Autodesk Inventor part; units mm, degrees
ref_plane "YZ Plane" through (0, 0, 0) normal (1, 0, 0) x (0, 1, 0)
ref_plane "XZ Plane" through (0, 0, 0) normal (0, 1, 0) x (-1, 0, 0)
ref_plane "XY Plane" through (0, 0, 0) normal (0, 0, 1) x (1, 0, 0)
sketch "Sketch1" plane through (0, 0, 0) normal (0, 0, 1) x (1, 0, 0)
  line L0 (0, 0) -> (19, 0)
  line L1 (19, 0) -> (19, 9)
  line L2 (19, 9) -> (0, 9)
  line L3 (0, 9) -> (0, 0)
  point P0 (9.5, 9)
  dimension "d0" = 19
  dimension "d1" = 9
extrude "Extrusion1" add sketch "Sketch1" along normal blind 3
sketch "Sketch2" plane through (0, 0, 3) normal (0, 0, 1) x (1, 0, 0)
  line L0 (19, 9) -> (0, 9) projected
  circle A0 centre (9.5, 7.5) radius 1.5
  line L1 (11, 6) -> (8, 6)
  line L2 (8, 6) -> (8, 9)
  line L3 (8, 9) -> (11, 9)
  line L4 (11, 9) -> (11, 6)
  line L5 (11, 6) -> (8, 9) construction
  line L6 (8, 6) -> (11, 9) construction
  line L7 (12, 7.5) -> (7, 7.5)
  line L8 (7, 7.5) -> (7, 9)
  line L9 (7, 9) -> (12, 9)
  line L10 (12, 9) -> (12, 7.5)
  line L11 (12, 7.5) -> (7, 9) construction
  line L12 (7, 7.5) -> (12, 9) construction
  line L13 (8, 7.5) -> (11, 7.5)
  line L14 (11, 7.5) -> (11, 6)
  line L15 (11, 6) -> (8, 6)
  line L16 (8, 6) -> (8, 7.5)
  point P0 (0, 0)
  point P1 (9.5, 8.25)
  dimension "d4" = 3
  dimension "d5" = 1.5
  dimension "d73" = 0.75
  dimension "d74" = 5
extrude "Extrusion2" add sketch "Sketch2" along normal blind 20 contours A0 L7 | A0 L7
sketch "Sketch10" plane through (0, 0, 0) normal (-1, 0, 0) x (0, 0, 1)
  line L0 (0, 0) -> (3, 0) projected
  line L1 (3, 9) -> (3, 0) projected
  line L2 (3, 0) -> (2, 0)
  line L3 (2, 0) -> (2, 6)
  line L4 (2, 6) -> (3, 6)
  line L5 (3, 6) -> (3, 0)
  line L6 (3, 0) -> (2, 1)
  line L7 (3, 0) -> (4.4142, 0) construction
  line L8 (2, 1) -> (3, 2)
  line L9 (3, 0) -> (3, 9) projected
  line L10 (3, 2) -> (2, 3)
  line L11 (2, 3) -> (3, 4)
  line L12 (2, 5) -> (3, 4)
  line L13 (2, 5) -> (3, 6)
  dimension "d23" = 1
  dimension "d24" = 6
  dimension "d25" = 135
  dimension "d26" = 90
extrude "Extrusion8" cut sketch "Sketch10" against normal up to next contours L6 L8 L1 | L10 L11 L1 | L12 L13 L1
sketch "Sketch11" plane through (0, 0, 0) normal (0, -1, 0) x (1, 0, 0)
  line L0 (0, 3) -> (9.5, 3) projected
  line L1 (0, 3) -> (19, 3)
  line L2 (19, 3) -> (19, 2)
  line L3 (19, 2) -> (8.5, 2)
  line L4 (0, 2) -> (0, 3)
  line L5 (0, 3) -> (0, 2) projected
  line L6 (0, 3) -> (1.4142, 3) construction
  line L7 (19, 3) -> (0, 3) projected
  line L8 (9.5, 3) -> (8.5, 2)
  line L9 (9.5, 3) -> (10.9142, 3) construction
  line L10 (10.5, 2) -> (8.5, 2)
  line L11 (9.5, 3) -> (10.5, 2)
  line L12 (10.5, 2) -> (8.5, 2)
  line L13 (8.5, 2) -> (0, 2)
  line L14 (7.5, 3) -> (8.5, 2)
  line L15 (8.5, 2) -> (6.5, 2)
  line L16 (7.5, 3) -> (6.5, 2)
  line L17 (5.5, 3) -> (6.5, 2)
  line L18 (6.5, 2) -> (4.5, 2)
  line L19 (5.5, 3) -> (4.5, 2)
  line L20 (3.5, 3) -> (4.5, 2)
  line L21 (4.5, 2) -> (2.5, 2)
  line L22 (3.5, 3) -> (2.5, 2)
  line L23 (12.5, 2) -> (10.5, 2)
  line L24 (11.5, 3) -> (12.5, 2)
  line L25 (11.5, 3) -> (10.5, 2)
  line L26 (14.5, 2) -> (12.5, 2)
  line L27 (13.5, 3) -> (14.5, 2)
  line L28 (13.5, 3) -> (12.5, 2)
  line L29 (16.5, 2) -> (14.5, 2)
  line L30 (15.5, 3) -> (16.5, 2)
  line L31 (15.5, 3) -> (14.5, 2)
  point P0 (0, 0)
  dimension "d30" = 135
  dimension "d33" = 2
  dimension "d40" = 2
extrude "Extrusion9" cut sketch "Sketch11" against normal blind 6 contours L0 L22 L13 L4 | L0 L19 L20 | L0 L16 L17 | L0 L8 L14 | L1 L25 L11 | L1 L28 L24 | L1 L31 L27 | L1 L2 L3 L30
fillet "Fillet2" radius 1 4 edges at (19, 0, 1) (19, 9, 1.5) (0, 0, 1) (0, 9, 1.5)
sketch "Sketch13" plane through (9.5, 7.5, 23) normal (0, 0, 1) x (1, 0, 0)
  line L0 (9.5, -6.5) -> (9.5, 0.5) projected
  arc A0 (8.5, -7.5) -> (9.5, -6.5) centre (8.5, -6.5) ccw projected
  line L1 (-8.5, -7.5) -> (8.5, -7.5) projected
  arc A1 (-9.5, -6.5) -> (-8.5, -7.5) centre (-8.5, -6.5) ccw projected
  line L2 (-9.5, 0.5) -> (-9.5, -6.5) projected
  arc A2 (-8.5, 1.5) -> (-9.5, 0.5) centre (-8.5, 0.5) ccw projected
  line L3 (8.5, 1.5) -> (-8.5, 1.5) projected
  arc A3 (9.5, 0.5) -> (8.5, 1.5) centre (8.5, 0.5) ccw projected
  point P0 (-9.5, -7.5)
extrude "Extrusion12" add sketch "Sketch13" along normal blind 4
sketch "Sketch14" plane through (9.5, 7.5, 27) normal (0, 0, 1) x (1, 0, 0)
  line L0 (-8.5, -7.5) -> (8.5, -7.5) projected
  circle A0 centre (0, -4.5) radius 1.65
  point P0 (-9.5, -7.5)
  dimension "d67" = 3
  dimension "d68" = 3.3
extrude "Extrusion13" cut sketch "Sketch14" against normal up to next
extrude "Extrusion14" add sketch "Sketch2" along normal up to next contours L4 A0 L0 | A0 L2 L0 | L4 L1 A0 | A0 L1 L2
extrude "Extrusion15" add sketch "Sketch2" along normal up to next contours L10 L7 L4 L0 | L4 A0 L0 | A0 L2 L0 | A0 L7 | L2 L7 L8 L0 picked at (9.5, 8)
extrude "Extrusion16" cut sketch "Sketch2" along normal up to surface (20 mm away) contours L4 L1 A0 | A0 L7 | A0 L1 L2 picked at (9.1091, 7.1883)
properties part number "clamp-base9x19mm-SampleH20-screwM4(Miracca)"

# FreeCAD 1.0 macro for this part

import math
import FreeCAD as App
import Part
import Sketcher


def edges_at(feature, points):
    """Names of the edges that pass closest to the given points."""
    edges = feature.Shape.Edges
    near = lambda p: min(range(len(edges)), key=lambda i: edges[i].distToShape(Part.Vertex(*p))[0])
    return sorted({f"Edge{near(p) + 1}" for p in points})


def add_polygon(sketch, points):
    """Adds a closed chain of lines whose ends are joined by coincident constraints."""
    first, n = sketch.GeometryCount, len(points)
    for a, b in zip(points, points[1:] + points[:1]):
        sketch.addGeometry(Part.LineSegment(App.Vector(*a, 0), App.Vector(*b, 0)), False)
    for i in range(n):
        sketch.addConstraint(Sketcher.Constraint("Coincident", first + i, 2, first + (i + 1) % n, 1))

doc = App.newDocument("Part")
params = doc.addObject("Spreadsheet::Sheet", "Params")
for row, (alias, value) in enumerate([
    ("sketch1_width", "19 mm"),
    ("sketch1_height", "9 mm"),
    ("pad1_length", "3 mm"),
    ("sketch2_diameter", "3 mm"),
    ("pad2_length", "20 mm"),
    ("sketch4_width", "2 mm"),
    ("sketch4_width2", "3.5 mm"),
    ("pocket2_length", "6 mm"),
    ("fillet_radius", "1 mm"),
    ("sketch5_radius", "1 mm"),
    ("sketch5_width", "17 mm"),
    ("sketch5_height", "7 mm"),
    ("pad3_length", "4 mm"),
    ("sketch6_diameter", "3.3 mm"),
    ("sketch7_radius", "1.5 mm"),
    ("sketch8_width", "5 mm"),
    ("sketch8_height", "1.5 mm"),
    ("sketch9_width", "3 mm"),
    ("sketch9_height", "1.5 mm"),
    ("pocket4_length", "20 mm"),
], start=1):
    params.set(f"A{row}", alias)
    params.set(f"B{row}", "=" + value)
    params.setAlias(f"B{row}", alias)

body = doc.addObject("PartDesign::Body", "Body")

# Sketch on XY plane
sketch1 = doc.addObject("Sketcher::SketchObject", "Sketch")
body.addObject(sketch1)
sketch1.AttachmentSupport = (doc.XY_Plane, [""])
sketch1.MapMode = "FlatFace"
add_polygon(sketch1, [(0, 9), (0, 0), (19, 0), (19, 9)])  # lines 0-3
sketch1.addConstraint([
    Sketcher.Constraint("Vertical", 0),
    Sketcher.Constraint("Horizontal", 1),
    Sketcher.Constraint("Vertical", 2),
    Sketcher.Constraint("Horizontal", 3),
    Sketcher.Constraint("Coincident", 0, 2, -1, 1),
    Sketcher.Constraint("DistanceX", 1, 1, 1, 2, 19.0),
    Sketcher.Constraint("DistanceY", 0, 2, 0, 1, 9.0),
])
sketch1.setExpression("Constraints[9]", "Params.sketch1_width")
sketch1.setExpression("Constraints[10]", "Params.sketch1_height")
pad1 = doc.addObject("PartDesign::Pad", "Pad")
body.addObject(pad1)
pad1.Profile = sketch1
pad1.setExpression("Length", "Params.pad1_length")

# Sketch on XY plane
sketch2 = doc.addObject("Sketcher::SketchObject", "Sketch001")
body.addObject(sketch2)
sketch2.AttachmentSupport = (doc.XY_Plane, [""])
sketch2.MapMode = "FlatFace"
sketch2.AttachmentOffset = App.Placement(App.Vector(0, 0, 3), App.Rotation())
sketch2.addGeometry(Part.Circle(App.Vector(9.5, 7.5, 0), App.Vector(0, 0, 1), 1.5), False)
sketch2.addConstraint([
    Sketcher.Constraint("Diameter", 0, 3.0),
    Sketcher.Constraint("DistanceX", -1, 1, 0, 3, 9.5),
    Sketcher.Constraint("DistanceY", -1, 1, 0, 3, 7.5),
])
sketch2.setExpression("Constraints[0]", "Params.sketch2_diameter")
pad2 = doc.addObject("PartDesign::Pad", "Pad001")
body.addObject(pad2)
pad2.Profile = sketch2
pad2.setExpression("Length", "Params.pad2_length")

# Sketch on YZ plane
sketch3 = doc.addObject("Sketcher::SketchObject", "Sketch002")
body.addObject(sketch3)
sketch3.AttachmentSupport = (doc.YZ_Plane, [""])
sketch3.MapMode = "FlatFace"
add_polygon(sketch3, [(1, 2), (0, 3), (2, 3)])  # lines 0-2
add_polygon(sketch3, [(3, 2), (2, 3), (4, 3)])  # lines 3-5
add_polygon(sketch3, [(5, 2), (4, 3), (6, 3)])  # lines 6-8
sketch3.addConstraint([
    Sketcher.Constraint("Horizontal", 1),
    Sketcher.Constraint("Horizontal", 4),
    Sketcher.Constraint("Horizontal", 7),
    Sketcher.Constraint("Coincident", 3, 2, 1, 2),
    Sketcher.Constraint("Coincident", 6, 2, 4, 2),
    Sketcher.Constraint("PointOnObject", 0, 2, -2),
    Sketcher.Constraint("Perpendicular", 0, 2),
    Sketcher.Constraint("Perpendicular", 2, 3),
    Sketcher.Constraint("Perpendicular", 3, 5),
    Sketcher.Constraint("Perpendicular", 5, 6),
    Sketcher.Constraint("Perpendicular", 6, 8),
    Sketcher.Constraint("Horizontal", 2, 2, 5, 2),
    Sketcher.Constraint("Horizontal", 5, 2, 8, 2),
    Sketcher.Constraint("Equal", 0, 2),
    Sketcher.Constraint("DistanceX", -1, 1, 2, 2, 1.0),
    Sketcher.Constraint("DistanceY", -1, 1, 0, 2, 3.0),
])
pocket1 = doc.addObject("PartDesign::Pocket", "Pocket")
body.addObject(pocket1)
pocket1.Profile = sketch3
pocket1.Type = "UpToFirst"
pocket1.Reversed = True

# Sketch on XZ plane
sketch4 = doc.addObject("Sketcher::SketchObject", "Sketch003")
body.addObject(sketch4)
sketch4.AttachmentSupport = (doc.XZ_Plane, [""])
sketch4.MapMode = "FlatFace"
add_polygon(sketch4, [(3.5, 3), (0, 3), (0, 2), (2.5, 2)])  # lines 0-3
add_polygon(sketch4, [(5.5, 3), (3.5, 3), (4.5, 2)])  # lines 4-6
add_polygon(sketch4, [(7.5, 3), (5.5, 3), (6.5, 2)])  # lines 7-9
add_polygon(sketch4, [(9.5, 3), (7.5, 3), (8.5, 2)])  # lines 10-12
add_polygon(sketch4, [(11.5, 3), (9.5, 3), (10.5, 2)])  # lines 13-15
add_polygon(sketch4, [(13.5, 3), (11.5, 3), (12.5, 2)])  # lines 16-18
add_polygon(sketch4, [(15.5, 3), (13.5, 3), (14.5, 2)])  # lines 19-21
add_polygon(sketch4, [(19, 3), (15.5, 3), (16.5, 2), (19, 2)])  # lines 22-25
sketch4.addConstraint([
    Sketcher.Constraint("Horizontal", 0),
    Sketcher.Constraint("Vertical", 1),
    Sketcher.Constraint("Horizontal", 2),
    Sketcher.Constraint("Horizontal", 4),
    Sketcher.Constraint("Horizontal", 7),
    Sketcher.Constraint("Horizontal", 10),
    Sketcher.Constraint("Horizontal", 13),
    Sketcher.Constraint("Horizontal", 16),
    Sketcher.Constraint("Horizontal", 19),
    Sketcher.Constraint("Horizontal", 22),
    Sketcher.Constraint("Horizontal", 24),
    Sketcher.Constraint("Vertical", 25),
    Sketcher.Constraint("Coincident", 4, 2, 3, 2),
    Sketcher.Constraint("Coincident", 7, 2, 6, 2),
    Sketcher.Constraint("Coincident", 10, 2, 9, 2),
    Sketcher.Constraint("Coincident", 13, 2, 12, 2),
    Sketcher.Constraint("Coincident", 16, 2, 15, 2),
    Sketcher.Constraint("Coincident", 19, 2, 18, 2),
    Sketcher.Constraint("Coincident", 22, 2, 21, 2),
    Sketcher.Constraint("PointOnObject", 0, 2, -2),
    Sketcher.Constraint("Perpendicular", 3, 5),
    Sketcher.Constraint("Perpendicular", 5, 6),
    Sketcher.Constraint("Perpendicular", 6, 8),
    Sketcher.Constraint("Perpendicular", 8, 9),
    Sketcher.Constraint("Perpendicular", 9, 11),
    Sketcher.Constraint("Perpendicular", 11, 12),
    Sketcher.Constraint("Perpendicular", 12, 14),
    Sketcher.Constraint("Perpendicular", 14, 15),
    Sketcher.Constraint("Perpendicular", 15, 17),
    Sketcher.Constraint("Perpendicular", 17, 18),
    Sketcher.Constraint("Perpendicular", 18, 20),
    Sketcher.Constraint("Perpendicular", 20, 21),
    Sketcher.Constraint("Perpendicular", 21, 23),
    Sketcher.Constraint("Horizontal", 2, 2, 5, 2),
    Sketcher.Constraint("Horizontal", 5, 2, 8, 2),
    Sketcher.Constraint("Horizontal", 8, 2, 11, 2),
    Sketcher.Constraint("Horizontal", 11, 2, 14, 2),
    Sketcher.Constraint("Horizontal", 14, 2, 17, 2),
    Sketcher.Constraint("Horizontal", 17, 2, 20, 2),
    Sketcher.Constraint("Horizontal", 20, 2, 23, 2),
    Sketcher.Constraint("Equal", 0, 22),
    Sketcher.Constraint("Equal", 2, 24),
    Sketcher.Constraint("DistanceX", 4, 2, 4, 1, 2.0),
    Sketcher.Constraint("DistanceY", -1, 1, 1, 2, 2.0),
    Sketcher.Constraint("DistanceX", 0, 2, 0, 1, 3.5),
])
sketch4.setExpression("Constraints[68]", "Params.sketch4_width")
sketch4.setExpression("Constraints[70]", "Params.sketch4_width2")
pocket2 = doc.addObject("PartDesign::Pocket", "Pocket001")
body.addObject(pocket2)
pocket2.Profile = sketch4
pocket2.setExpression("Length", "Params.pocket2_length")
doc.recompute()

fillet = doc.addObject("PartDesign::Fillet", "Fillet")
body.addObject(fillet)
fillet.Base = (pocket2, edges_at(pocket2, [
    (19, 0, 1),
    (19, 9, 1.5),
    (0, 0, 1),
    (0, 9, 1.5),
]))
fillet.setExpression("Radius", "Params.fillet_radius")

# Sketch on XY plane
sketch5 = doc.addObject("Sketcher::SketchObject", "Sketch004")
body.addObject(sketch5)
sketch5.AttachmentSupport = (doc.XY_Plane, [""])
sketch5.MapMode = "FlatFace"
sketch5.AttachmentOffset = App.Placement(App.Vector(0, 0, 23), App.Rotation())
sketch5.addGeometry([
    Part.ArcOfCircle(Part.Circle(App.Vector(18, 1, 0), App.Vector(0, 0, 1), 1), math.radians(-90), math.radians(0)),  # 0
    Part.LineSegment(App.Vector(19, 1, 0), App.Vector(19, 8, 0)),  # 1
    Part.ArcOfCircle(Part.Circle(App.Vector(18, 8, 0), App.Vector(0, 0, 1), 1), math.radians(0), math.radians(90)),  # 2
    Part.LineSegment(App.Vector(18, 9, 0), App.Vector(1, 9, 0)),  # 3
    Part.ArcOfCircle(Part.Circle(App.Vector(1, 8, 0), App.Vector(0, 0, 1), 1), math.radians(90), math.radians(180)),  # 4
    Part.LineSegment(App.Vector(0, 8, 0), App.Vector(0, 1, 0)),  # 5
    Part.ArcOfCircle(Part.Circle(App.Vector(1, 1, 0), App.Vector(0, 0, 1), 1), math.radians(180), math.radians(270)),  # 6
    Part.LineSegment(App.Vector(1, 0, 0), App.Vector(18, 0, 0)),  # 7
], False)
sketch5.addConstraint([
    Sketcher.Constraint("Tangent", 0, 2, 1, 1),
    Sketcher.Constraint("Tangent", 1, 2, 2, 1),
    Sketcher.Constraint("Tangent", 2, 2, 3, 1),
    Sketcher.Constraint("Tangent", 3, 2, 4, 1),
    Sketcher.Constraint("Tangent", 4, 2, 5, 1),
    Sketcher.Constraint("Tangent", 5, 2, 6, 1),
    Sketcher.Constraint("Tangent", 6, 2, 7, 1),
    Sketcher.Constraint("Tangent", 7, 2, 0, 1),
    Sketcher.Constraint("Vertical", 1),
    Sketcher.Constraint("Horizontal", 3),
    Sketcher.Constraint("Vertical", 5),
    Sketcher.Constraint("Horizontal", 7),
    Sketcher.Constraint("Equal", 0, 2),
    Sketcher.Constraint("Equal", 2, 4),
    Sketcher.Constraint("Equal", 4, 6),
    Sketcher.Constraint("PointOnObject", 4, 2, -2),
    Sketcher.Constraint("PointOnObject", 6, 2, -1),
    Sketcher.Constraint("Radius", 0, 1.0),
    Sketcher.Constraint("DistanceX", 3, 2, 3, 1, 17.0),
    Sketcher.Constraint("DistanceY", 1, 1, 1, 2, 7.0),
])
sketch5.setExpression("Constraints[17]", "Params.sketch5_radius")
sketch5.setExpression("Constraints[18]", "Params.sketch5_width")
sketch5.setExpression("Constraints[19]", "Params.sketch5_height")
pad3 = doc.addObject("PartDesign::Pad", "Pad002")
body.addObject(pad3)
pad3.Profile = sketch5
pad3.setExpression("Length", "Params.pad3_length")

# Sketch on XY plane
sketch6 = doc.addObject("Sketcher::SketchObject", "Sketch005")
body.addObject(sketch6)
sketch6.AttachmentSupport = (doc.XY_Plane, [""])
sketch6.MapMode = "FlatFace"
sketch6.AttachmentOffset = App.Placement(App.Vector(0, 0, 27), App.Rotation())
sketch6.addGeometry(Part.Circle(App.Vector(9.5, 3, 0), App.Vector(0, 0, 1), 1.6), False)
sketch6.addConstraint([
    Sketcher.Constraint("Diameter", 0, 3.3),
    Sketcher.Constraint("DistanceY", -1, 1, 0, 3, 3.0),
    Sketcher.Constraint("DistanceX", -1, 1, 0, 3, 9.5),
])
sketch6.setExpression("Constraints[0]", "Params.sketch6_diameter")
pocket3 = doc.addObject("PartDesign::Pocket", "Pocket002")
body.addObject(pocket3)
pocket3.Profile = sketch6
pocket3.Type = "UpToFirst"

# Sketch on XY plane
sketch7 = doc.addObject("Sketcher::SketchObject", "Sketch006")
body.addObject(sketch7)
sketch7.AttachmentSupport = (doc.XY_Plane, [""])
sketch7.MapMode = "FlatFace"
sketch7.AttachmentOffset = App.Placement(App.Vector(0, 0, 3), App.Rotation())
sketch7.addGeometry([
    Part.LineSegment(App.Vector(11, 7.5, 0), App.Vector(11, 9, 0)),  # 0
    Part.LineSegment(App.Vector(11, 9, 0), App.Vector(9.5, 9, 0)),  # 1
    Part.ArcOfCircle(Part.Circle(App.Vector(9.5, 7.5, 0), App.Vector(0, 0, 1), 1.5), math.radians(0), math.radians(90)),  # 2
    Part.ArcOfCircle(Part.Circle(App.Vector(9.5, 7.5, 0), App.Vector(0, 0, 1), 1.5), math.radians(90), math.radians(180)),  # 3
    Part.LineSegment(App.Vector(9.5, 9, 0), App.Vector(8, 9, 0)),  # 4
    Part.LineSegment(App.Vector(8, 9, 0), App.Vector(8, 7.5, 0)),  # 5
    Part.LineSegment(App.Vector(11, 6, 0), App.Vector(11, 7.5, 0)),  # 6
    Part.ArcOfCircle(Part.Circle(App.Vector(9.5, 7.5, 0), App.Vector(0, 0, 1), 1.5), math.radians(-90), math.radians(0)),  # 7
    Part.LineSegment(App.Vector(9.5, 6, 0), App.Vector(11, 6, 0)),  # 8
    Part.ArcOfCircle(Part.Circle(App.Vector(9.5, 7.5, 0), App.Vector(0, 0, 1), 1.5), math.radians(180), math.radians(270)),  # 9
    Part.LineSegment(App.Vector(8, 7.5, 0), App.Vector(8, 6, 0)),  # 10
    Part.LineSegment(App.Vector(8, 6, 0), App.Vector(9.5, 6, 0)),  # 11
], False)
sketch7.addConstraint([
    Sketcher.Constraint("Coincident", 0, 2, 1, 1),
    Sketcher.Constraint("Tangent", 1, 2, 2, 2),
    Sketcher.Constraint("Tangent", 2, 1, 0, 1),
    Sketcher.Constraint("Tangent", 3, 1, 4, 1),
    Sketcher.Constraint("Coincident", 4, 2, 5, 1),
    Sketcher.Constraint("Tangent", 5, 2, 3, 2),
    Sketcher.Constraint("Tangent", 6, 2, 7, 2),
    Sketcher.Constraint("Tangent", 7, 1, 8, 1),
    Sketcher.Constraint("Coincident", 8, 2, 6, 1),
    Sketcher.Constraint("Tangent", 9, 1, 10, 1),
    Sketcher.Constraint("Coincident", 10, 2, 11, 1),
    Sketcher.Constraint("Tangent", 11, 2, 9, 2),
    Sketcher.Constraint("Vertical", 0),
    Sketcher.Constraint("Horizontal", 1),
    Sketcher.Constraint("Horizontal", 4),
    Sketcher.Constraint("Vertical", 5),
    Sketcher.Constraint("Vertical", 6),
    Sketcher.Constraint("Horizontal", 8),
    Sketcher.Constraint("Vertical", 10),
    Sketcher.Constraint("Horizontal", 11),
    Sketcher.Constraint("Coincident", 3, 3, 2, 3),
    Sketcher.Constraint("Coincident", 7, 3, 2, 3),
    Sketcher.Constraint("Coincident", 9, 3, 2, 3),
    Sketcher.Constraint("Equal", 2, 3),
    Sketcher.Constraint("Equal", 3, 7),
    Sketcher.Constraint("Equal", 7, 9),
    Sketcher.Constraint("Radius", 2, 1.5),
    Sketcher.Constraint("DistanceX", -1, 1, 0, 2, 11.0),
    Sketcher.Constraint("DistanceY", -1, 1, 0, 2, 9.0),
])
sketch7.setExpression("Constraints[26]", "Params.sketch7_radius")
pad4 = doc.addObject("PartDesign::Pad", "Pad003")
body.addObject(pad4)
pad4.Profile = sketch7
pad4.Type = "UpToFirst"

# Sketch on XY plane
sketch8 = doc.addObject("Sketcher::SketchObject", "Sketch007")
body.addObject(sketch8)
sketch8.AttachmentSupport = (doc.XY_Plane, [""])
sketch8.MapMode = "FlatFace"
sketch8.AttachmentOffset = App.Placement(App.Vector(0, 0, 3), App.Rotation())
add_polygon(sketch8, [(12, 7.5), (12, 9), (7, 9), (7, 7.5)])  # lines 0-3
sketch8.addConstraint([
    Sketcher.Constraint("Vertical", 0),
    Sketcher.Constraint("Horizontal", 1),
    Sketcher.Constraint("Vertical", 2),
    Sketcher.Constraint("Horizontal", 3),
    Sketcher.Constraint("DistanceX", 1, 2, 1, 1, 5.0),
    Sketcher.Constraint("DistanceY", 0, 1, 0, 2, 1.5),
    Sketcher.Constraint("DistanceX", -1, 1, 0, 2, 12.0),
    Sketcher.Constraint("DistanceY", -1, 1, 0, 2, 9.0),
])
sketch8.setExpression("Constraints[8]", "Params.sketch8_width")
sketch8.setExpression("Constraints[9]", "Params.sketch8_height")
pad5 = doc.addObject("PartDesign::Pad", "Pad004")
body.addObject(pad5)
pad5.Profile = sketch8
pad5.Type = "UpToFirst"

# Sketch on XY plane
sketch9 = doc.addObject("Sketcher::SketchObject", "Sketch008")
body.addObject(sketch9)
sketch9.AttachmentSupport = (doc.XY_Plane, [""])
sketch9.MapMode = "FlatFace"
sketch9.AttachmentOffset = App.Placement(App.Vector(0, 0, 3), App.Rotation())
add_polygon(sketch9, [(11, 6), (11, 7.5), (8, 7.5), (8, 6)])  # lines 0-3
sketch9.addConstraint([
    Sketcher.Constraint("Vertical", 0),
    Sketcher.Constraint("Horizontal", 1),
    Sketcher.Constraint("Vertical", 2),
    Sketcher.Constraint("Horizontal", 3),
    Sketcher.Constraint("DistanceX", 1, 2, 1, 1, 3.0),
    Sketcher.Constraint("DistanceY", 0, 1, 0, 2, 1.5),
    Sketcher.Constraint("DistanceX", -1, 1, 0, 2, 11.0),
    Sketcher.Constraint("DistanceY", -1, 1, 2, 2, 6.0),
])
sketch9.setExpression("Constraints[8]", "Params.sketch9_width")
sketch9.setExpression("Constraints[9]", "Params.sketch9_height")
pocket4 = doc.addObject("PartDesign::Pocket", "Pocket003")
body.addObject(pocket4)
pocket4.Profile = sketch9
pocket4.setExpression("Length", "Params.pocket4_length")
pocket4.Reversed = True

doc.recompute()
